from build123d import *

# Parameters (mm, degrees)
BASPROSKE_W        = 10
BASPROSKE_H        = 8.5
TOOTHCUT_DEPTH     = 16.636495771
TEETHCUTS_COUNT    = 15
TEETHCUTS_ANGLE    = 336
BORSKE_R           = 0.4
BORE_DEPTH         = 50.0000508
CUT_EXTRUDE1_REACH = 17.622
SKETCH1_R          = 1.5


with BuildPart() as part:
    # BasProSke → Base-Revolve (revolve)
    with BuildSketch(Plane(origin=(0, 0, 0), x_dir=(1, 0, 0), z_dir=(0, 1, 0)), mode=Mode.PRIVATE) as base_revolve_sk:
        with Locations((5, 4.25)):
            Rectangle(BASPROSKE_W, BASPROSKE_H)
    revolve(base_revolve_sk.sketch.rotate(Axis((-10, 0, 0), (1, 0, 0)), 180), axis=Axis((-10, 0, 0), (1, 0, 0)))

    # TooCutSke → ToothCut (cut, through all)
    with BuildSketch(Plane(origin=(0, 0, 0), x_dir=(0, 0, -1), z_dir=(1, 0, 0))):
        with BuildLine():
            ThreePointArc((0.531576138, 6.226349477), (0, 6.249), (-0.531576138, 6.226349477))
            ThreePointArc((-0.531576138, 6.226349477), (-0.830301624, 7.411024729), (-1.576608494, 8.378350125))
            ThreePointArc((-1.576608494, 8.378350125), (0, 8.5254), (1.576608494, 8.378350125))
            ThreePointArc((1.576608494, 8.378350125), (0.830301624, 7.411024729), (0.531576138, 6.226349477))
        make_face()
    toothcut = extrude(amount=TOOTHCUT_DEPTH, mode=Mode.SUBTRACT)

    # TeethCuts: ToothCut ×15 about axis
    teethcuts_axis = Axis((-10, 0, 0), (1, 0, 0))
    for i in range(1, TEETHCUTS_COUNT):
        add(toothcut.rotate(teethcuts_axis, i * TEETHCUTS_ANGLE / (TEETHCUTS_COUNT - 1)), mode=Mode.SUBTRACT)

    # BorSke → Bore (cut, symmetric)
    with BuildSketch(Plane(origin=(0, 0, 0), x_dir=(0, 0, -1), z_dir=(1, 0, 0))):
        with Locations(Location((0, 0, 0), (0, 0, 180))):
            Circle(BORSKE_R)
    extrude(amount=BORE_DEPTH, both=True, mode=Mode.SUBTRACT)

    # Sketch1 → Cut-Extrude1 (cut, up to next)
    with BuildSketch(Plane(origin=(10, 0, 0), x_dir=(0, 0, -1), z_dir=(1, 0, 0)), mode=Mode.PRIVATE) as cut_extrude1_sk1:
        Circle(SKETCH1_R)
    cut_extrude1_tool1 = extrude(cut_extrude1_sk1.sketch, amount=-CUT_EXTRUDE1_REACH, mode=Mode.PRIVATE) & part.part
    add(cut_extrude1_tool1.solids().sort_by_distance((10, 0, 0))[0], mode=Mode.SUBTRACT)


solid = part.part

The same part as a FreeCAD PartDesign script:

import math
import FreeCAD as App
import Part
import Sketcher
from FreeCAD import Vector
Q = App.Units.Quantity


def add_polygon(sketch, points):
    """Adds a closed chain of lines whose ends are joined by coincident constraints."""
    first, n = sketch.GeometryCount, len(points)
    for a, b in zip(points, points[1:] + points[:1]):
        sketch.addGeometry(Part.LineSegment(App.Vector(*a, 0), App.Vector(*b, 0)), False)
    for i in range(n):
        sketch.addConstraint(Sketcher.Constraint("Coincident", first + i, 2, first + (i + 1) % n, 1))

doc = App.newDocument("Part")
body = doc.addObject("PartDesign::Body", "Body")

# Sketch on XZ plane
sketch1 = body.newObject("Sketcher::SketchObject", "Sketch")
sketch1.AttachmentSupport = (doc.getObject("XZ_Plane"), [""])
sketch1.MapMode = "FlatFace"
add_polygon(sketch1, [(0, -8), (0, 0), (10, 0), (10, -8)])  # lines 0-3
sketch1.addConstraint([
    Sketcher.Constraint("Vertical", 0),
    Sketcher.Constraint("Horizontal", 1),
    Sketcher.Constraint("Vertical", 2),
    Sketcher.Constraint("Horizontal", 3),
    Sketcher.Constraint("Coincident", 0, 2, -1, 1),
    Sketcher.Constraint("DistanceX", 1, 1, 1, 2, Q("10 mm")),
    Sketcher.Constraint("DistanceY", 0, 1, 0, 2, Q("8.5 mm")),
])
revolution = body.newObject("PartDesign::Revolution", "Revolution")
revolution.Profile = sketch1
revolution.ReferenceAxis = (sketch1, ["H_Axis"])
revolution.Angle = 360

# Sketch on YZ plane
sketch2 = body.newObject("Sketcher::SketchObject", "Sketch001")
sketch2.AttachmentSupport = (doc.getObject("YZ_Plane"), [""])
sketch2.MapMode = "FlatFace"
sketch2.addGeometry([
    Part.ArcOfCircle(Part.Circle(Vector(0, 0, 0), Vector(0, 0, 1), 6.2), math.radians(-4.88), math.radians(4.88)),
    Part.ArcOfCircle(Part.Circle(Vector(6.1, -3.5, 0), Vector(0, 0, 1), 3), math.radians(41), math.radians(88)),
    Part.ArcOfCircle(Part.Circle(Vector(0, 0, 0), Vector(0, 0, 1), 8.5), math.radians(-11), math.radians(11)),
    Part.ArcOfCircle(Part.Circle(Vector(6.1, 3.5, 0), Vector(0, 0, 1), 3), math.radians(-88), math.radians(-41)),
], False)
sketch2.addConstraint([
    Sketcher.Constraint("Coincident", 0, 1, 1, 2),
    Sketcher.Constraint("Coincident", 1, 1, 2, 1),
    Sketcher.Constraint("Coincident", 2, 2, 3, 2),
    Sketcher.Constraint("Coincident", 3, 1, 0, 2),
    Sketcher.Constraint("Coincident", 0, 3, -1, 1),
    Sketcher.Constraint("Coincident", 2, 3, -1, 1),
    Sketcher.Constraint("Equal", 1, 3),
    Sketcher.Constraint("Symmetric", 1, 3, 3, 3, -1),
    Sketcher.Constraint("Radius", 1, Q("3 mm")),
    Sketcher.Constraint("Radius", 0, Q("6.249 mm")),
    Sketcher.Constraint("Radius", 2, Q("8.5254 mm")),
    Sketcher.Constraint("DistanceX", 0, 1, 1, 1, Q("2.152001 mm")),
    Sketcher.Constraint("DistanceX", -1, 1, 1, 3, Q("6.100541 mm")),
])
pocket1 = body.newObject("PartDesign::Pocket", "Pocket")
pocket1.Profile = sketch2
pocket1.Type = "ThroughAll"
pocket1.Reversed = True
doc.recompute()

polarpattern = body.newObject("PartDesign::PolarPattern", "PolarPattern")
polarpattern.Originals = [pocket1]
polarpattern.Axis = (doc.getObject("X_Axis"), [""])
polarpattern.Angle = 360
polarpattern.Occurrences = 15
body.Tip = polarpattern

# Sketch on YZ plane
sketch3 = body.newObject("Sketcher::SketchObject", "Sketch002")
sketch3.AttachmentSupport = (doc.getObject("YZ_Plane"), [""])
sketch3.MapMode = "FlatFace"
sketch3.addGeometry(Part.Circle(Vector(0, 0, 0), Vector(0, 0, 1), 0.4), False)
sketch3.addConstraint([
    Sketcher.Constraint("Coincident", 0, 3, -1, 1),
    Sketcher.Constraint("Diameter", 0, Q("0.8 mm")),
])
pocket2 = body.newObject("PartDesign::Pocket", "Pocket001")
pocket2.Profile = sketch3
pocket2.Length = 100.000102
pocket2.Midplane = True

# Sketch on YZ plane
sketch4 = body.newObject("Sketcher::SketchObject", "Sketch003")
sketch4.AttachmentSupport = (doc.getObject("YZ_Plane"), [""])
sketch4.MapMode = "FlatFace"
sketch4.AttachmentOffset = App.Placement(Vector(0, 0, 10), App.Rotation())
sketch4.addGeometry(Part.Circle(Vector(0, 0, 0), Vector(0, 0, 1), 1.5), False)
sketch4.addConstraint([
    Sketcher.Constraint("Coincident", 0, 3, -1, 1),
    Sketcher.Constraint("Diameter", 0, Q("3 mm")),
])
pocket3 = body.newObject("PartDesign::Pocket", "Pocket002")
pocket3.Profile = sketch4
pocket3.Length = 10

doc.recompute()
